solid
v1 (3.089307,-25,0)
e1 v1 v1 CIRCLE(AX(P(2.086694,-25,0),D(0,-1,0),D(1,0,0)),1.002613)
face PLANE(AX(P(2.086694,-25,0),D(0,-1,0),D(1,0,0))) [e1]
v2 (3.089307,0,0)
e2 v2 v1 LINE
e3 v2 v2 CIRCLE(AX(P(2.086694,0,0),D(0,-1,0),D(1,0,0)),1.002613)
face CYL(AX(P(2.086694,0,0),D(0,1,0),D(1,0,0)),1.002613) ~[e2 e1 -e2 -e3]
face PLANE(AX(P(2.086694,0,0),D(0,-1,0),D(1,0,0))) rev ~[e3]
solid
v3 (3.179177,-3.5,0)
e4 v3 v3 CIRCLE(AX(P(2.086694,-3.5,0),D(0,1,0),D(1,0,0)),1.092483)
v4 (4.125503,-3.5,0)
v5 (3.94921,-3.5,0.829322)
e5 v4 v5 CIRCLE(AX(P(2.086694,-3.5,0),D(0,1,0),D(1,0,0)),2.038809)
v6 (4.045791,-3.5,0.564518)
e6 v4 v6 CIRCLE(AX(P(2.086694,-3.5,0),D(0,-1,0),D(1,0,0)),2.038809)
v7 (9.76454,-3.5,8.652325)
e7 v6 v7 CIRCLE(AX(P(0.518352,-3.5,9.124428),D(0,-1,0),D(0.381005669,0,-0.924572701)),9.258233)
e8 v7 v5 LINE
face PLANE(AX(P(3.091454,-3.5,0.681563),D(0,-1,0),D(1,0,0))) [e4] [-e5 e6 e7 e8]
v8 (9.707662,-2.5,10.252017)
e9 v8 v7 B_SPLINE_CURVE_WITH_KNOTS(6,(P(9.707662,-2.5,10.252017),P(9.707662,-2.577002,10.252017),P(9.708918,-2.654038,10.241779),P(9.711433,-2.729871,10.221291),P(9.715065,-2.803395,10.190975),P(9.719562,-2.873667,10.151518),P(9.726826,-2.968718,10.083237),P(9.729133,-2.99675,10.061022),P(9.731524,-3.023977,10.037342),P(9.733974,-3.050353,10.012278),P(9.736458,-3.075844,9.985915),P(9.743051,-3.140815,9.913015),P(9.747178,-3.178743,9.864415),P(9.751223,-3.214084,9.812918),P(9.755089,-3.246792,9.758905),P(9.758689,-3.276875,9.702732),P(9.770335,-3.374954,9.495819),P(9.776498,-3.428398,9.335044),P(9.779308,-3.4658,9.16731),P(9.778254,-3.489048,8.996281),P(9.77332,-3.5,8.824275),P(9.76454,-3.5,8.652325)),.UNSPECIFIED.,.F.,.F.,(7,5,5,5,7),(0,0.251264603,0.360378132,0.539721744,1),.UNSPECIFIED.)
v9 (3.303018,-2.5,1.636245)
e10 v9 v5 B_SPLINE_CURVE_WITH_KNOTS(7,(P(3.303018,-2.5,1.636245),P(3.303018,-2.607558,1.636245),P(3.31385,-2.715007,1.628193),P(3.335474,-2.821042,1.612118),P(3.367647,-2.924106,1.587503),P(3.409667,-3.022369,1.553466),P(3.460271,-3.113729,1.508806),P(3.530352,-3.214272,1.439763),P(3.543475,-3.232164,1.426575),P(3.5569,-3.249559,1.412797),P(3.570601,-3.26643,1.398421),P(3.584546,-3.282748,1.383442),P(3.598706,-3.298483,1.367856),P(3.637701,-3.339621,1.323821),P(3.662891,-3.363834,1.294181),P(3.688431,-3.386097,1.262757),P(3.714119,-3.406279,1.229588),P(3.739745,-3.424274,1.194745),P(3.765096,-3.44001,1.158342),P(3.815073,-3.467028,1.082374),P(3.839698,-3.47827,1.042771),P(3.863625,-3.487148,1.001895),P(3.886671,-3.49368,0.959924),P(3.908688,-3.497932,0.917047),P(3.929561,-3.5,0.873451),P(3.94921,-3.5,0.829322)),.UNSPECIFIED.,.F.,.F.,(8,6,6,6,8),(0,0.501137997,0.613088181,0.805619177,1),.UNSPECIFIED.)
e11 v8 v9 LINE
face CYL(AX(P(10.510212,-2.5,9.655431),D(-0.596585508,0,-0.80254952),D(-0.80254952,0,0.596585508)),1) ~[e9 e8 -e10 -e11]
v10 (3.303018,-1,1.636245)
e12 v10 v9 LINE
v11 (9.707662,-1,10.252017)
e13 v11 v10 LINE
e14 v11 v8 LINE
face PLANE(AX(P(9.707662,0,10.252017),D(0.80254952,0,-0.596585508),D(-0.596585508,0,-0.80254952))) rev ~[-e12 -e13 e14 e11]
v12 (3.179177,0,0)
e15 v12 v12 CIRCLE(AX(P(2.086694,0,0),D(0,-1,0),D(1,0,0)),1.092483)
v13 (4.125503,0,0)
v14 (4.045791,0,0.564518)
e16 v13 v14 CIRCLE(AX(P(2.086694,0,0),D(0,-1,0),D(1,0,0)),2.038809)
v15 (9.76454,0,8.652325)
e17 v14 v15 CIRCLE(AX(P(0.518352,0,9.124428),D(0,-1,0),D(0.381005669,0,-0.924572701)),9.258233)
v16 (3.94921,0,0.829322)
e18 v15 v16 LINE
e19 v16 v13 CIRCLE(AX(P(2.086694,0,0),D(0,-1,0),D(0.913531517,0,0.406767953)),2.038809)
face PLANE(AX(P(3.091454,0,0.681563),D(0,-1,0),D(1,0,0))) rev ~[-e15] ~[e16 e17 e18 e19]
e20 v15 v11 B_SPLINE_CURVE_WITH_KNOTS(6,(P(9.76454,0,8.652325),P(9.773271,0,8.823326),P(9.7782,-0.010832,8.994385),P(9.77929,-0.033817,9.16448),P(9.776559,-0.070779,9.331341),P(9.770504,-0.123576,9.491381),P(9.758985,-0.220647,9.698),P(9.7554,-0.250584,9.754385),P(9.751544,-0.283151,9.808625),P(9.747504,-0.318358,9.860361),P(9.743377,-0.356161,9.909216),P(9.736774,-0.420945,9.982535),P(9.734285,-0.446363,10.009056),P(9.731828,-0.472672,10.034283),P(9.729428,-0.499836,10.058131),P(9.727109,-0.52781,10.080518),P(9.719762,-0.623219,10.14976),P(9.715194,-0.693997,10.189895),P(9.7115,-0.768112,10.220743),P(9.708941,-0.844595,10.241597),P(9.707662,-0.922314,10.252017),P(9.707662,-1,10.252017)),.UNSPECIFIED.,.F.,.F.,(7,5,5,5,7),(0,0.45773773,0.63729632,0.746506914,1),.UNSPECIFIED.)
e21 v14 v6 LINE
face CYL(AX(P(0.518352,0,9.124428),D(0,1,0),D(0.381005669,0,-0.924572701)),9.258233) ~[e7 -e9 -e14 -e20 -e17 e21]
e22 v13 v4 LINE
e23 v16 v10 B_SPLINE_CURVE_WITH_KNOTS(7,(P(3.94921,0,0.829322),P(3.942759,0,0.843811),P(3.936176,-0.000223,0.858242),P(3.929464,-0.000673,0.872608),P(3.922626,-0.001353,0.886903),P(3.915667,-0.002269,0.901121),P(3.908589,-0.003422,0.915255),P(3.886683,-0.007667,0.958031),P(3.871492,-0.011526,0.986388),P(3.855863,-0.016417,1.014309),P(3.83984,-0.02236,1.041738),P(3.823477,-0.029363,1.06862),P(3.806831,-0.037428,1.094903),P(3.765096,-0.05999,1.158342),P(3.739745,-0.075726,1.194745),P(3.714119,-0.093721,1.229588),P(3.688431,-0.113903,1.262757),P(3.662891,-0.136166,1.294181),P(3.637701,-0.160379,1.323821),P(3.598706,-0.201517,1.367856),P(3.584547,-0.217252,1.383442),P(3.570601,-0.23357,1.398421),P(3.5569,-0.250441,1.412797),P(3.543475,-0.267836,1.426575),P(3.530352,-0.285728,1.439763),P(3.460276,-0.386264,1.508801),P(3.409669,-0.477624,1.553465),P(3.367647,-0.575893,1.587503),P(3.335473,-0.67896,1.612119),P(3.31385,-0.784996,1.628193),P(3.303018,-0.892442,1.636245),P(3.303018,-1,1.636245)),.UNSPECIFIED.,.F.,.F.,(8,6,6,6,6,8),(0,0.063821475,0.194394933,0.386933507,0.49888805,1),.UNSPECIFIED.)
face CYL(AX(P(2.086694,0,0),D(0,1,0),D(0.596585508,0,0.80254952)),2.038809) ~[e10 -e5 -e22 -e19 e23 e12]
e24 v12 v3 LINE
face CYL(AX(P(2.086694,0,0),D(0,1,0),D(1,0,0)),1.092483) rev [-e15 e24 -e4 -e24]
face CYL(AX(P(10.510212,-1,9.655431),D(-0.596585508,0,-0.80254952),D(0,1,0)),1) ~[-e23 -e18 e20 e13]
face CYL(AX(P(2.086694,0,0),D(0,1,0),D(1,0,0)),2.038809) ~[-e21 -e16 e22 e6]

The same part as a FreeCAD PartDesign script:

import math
import FreeCAD as App
import Part
import Sketcher

V = App.Vector
Q = App.Units.Quantity


def edges_at(feature, points):
    """Names of the edges that pass closest to the given points."""
    edges = feature.Shape.Edges
    near = lambda p: min(range(len(edges)), key=lambda i: edges[i].distToShape(Part.Vertex(*p))[0])
    return sorted({f"Edge{near(p) + 1}" for p in points})

doc = App.newDocument("Part")
body = doc.addObject("PartDesign::Body", "Body")

# Sketch on XZ plane
sketch1 = body.newObject("Sketcher::SketchObject", "Sketch")
sketch1.AttachmentSupport = (doc.getObject("XZ_Plane"), [""])
sketch1.MapMode = "FlatFace"
sketch1.addGeometry([
    Part.ArcOfCircle(Part.Circle(V(2.086694, 0, 0), V(0, 0, 1), 2.038809), math.radians(53.374258), math.radians(360)),
    Part.ArcOfCircle(Part.Circle(V(2.086694, 0, 0), V(0, 0, 1), 2.038809), math.radians(0), math.radians(16.074455)),
    Part.ArcOfCircle(Part.Circle(V(0.518352, 9.124428, 0), V(0, 0, 1), 9.258233), math.radians(-67.60401), math.radians(6.995596)),
    Part.LineSegment(V(9.707662, 10.252017, 0), V(3.303018, 1.636245, 0)),
], False)
sketch1.addConstraint([
    Sketcher.Constraint("Tangent", 0, 2, 1, 1),
    Sketcher.Constraint("Coincident", 1, 2, 2, 1),
    Sketcher.Constraint("Coincident", 2, 2, 3, 1),
    Sketcher.Constraint("Coincident", 3, 2, 0, 1),
    Sketcher.Constraint("Equal", 0, 1),
    Sketcher.Constraint("PointOnObject", 0, 3, -1),
    Sketcher.Constraint("PointOnObject", 0, 2, -1),
    Sketcher.Constraint("Radius", 0, Q("2.038809 mm")),
    Sketcher.Constraint("Radius", 2, Q("9.258233 mm")),
    Sketcher.Constraint("Distance", 3, Q("10.735501 mm")),
    Sketcher.Constraint("DistanceY", 1, 2, 2, 2, Q("9.687498 mm")),
    Sketcher.Constraint("DistanceX", -1, 1, 2, 3, Q("0.518352 mm")),
    Sketcher.Constraint("DistanceY", -1, 1, 2, 3, Q("9.124428 mm")),
    Sketcher.Constraint("DistanceX", -1, 1, 3, 2, Q("3.303018 mm")),
])
pad1 = body.newObject("PartDesign::Pad", "Pad")
pad1.Profile = sketch1
pad1.Length = 3.5

# Sketch on XZ plane
sketch2 = body.newObject("Sketcher::SketchObject", "Sketch001")
sketch2.AttachmentSupport = (doc.getObject("XZ_Plane"), [""])
sketch2.MapMode = "FlatFace"
sketch2.addGeometry(Part.Circle(V(2.086694, 0, 0), V(0, 0, 1), 1.092483), False)
sketch2.addConstraint([
    Sketcher.Constraint("PointOnObject", 0, 3, -1),
    Sketcher.Constraint("Diameter", 0, Q("2.184966 mm")),
    Sketcher.Constraint("DistanceX", -1, 1, 0, 3, Q("2.086694 mm")),
])
pocket1 = body.newObject("PartDesign::Pocket", "Pocket")
pocket1.Profile = sketch2
pocket1.Length = 59.1
pocket1.Reversed = True
doc.recompute()

fillet = body.newObject("PartDesign::Fillet", "Fillet")
fillet.Base = (pocket1, edges_at(pocket1, [(6.505, -3.5, 5.944)]))
fillet.Radius = 1
doc.recompute()

fillet2 = body.newObject("PartDesign::Fillet", "Fillet001")
fillet2.Base = (fillet, edges_at(fillet, [(6.505, 0, 5.944)]))
fillet2.Radius = 1
body2 = doc.addObject("PartDesign::Body", "Body001")

# Sketch on XZ plane
sketch3 = body2.newObject("Sketcher::SketchObject", "Sketch002")
sketch3.AttachmentSupport = (doc.getObject("XZ_Plane001"), [""])
sketch3.MapMode = "FlatFace"
sketch3.addGeometry(Part.Circle(V(2.086694, 0, 0), V(0, 0, 1), 1.002613), False)
sketch3.addConstraint([
    Sketcher.Constraint("PointOnObject", 0, 3, -1),
    Sketcher.Constraint("Diameter", 0, Q("2.005225 mm")),
    Sketcher.Constraint("DistanceX", -1, 1, 0, 3, Q("2.086694 mm")),
])
pad2 = body2.newObject("PartDesign::Pad", "Pad001")
pad2.Profile = sketch3
pad2.Length = 25

doc.recompute()
